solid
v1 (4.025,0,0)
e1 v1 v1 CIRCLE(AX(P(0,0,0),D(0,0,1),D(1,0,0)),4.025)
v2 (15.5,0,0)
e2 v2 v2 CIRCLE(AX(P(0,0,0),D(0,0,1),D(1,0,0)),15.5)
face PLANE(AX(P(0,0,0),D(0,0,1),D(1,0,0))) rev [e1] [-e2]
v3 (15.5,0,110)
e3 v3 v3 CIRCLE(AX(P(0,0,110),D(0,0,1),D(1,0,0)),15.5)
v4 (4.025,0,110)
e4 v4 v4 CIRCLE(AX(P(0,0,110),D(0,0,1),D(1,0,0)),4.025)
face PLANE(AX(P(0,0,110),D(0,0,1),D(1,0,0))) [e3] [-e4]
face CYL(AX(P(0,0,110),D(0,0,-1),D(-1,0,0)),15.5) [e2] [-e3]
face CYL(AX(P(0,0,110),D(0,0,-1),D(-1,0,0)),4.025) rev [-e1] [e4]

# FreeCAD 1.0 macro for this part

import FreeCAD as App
import Part
import Sketcher
from FreeCAD import Vector

doc = App.newDocument("Part")
body = doc.addObject("PartDesign::Body", "Body")

sketch1 = body.newObject("Sketcher::SketchObject", "Sketch")
sketch1.AttachmentSupport = (doc.getObject("XY_Plane"), [""])
sketch1.MapMode = "FlatFace"
sketch1.addGeometry([
    Part.Circle(Vector(0, 0, 0), Vector(0, 0, 1), 15.5),
    Part.Circle(Vector(0, 0, 0), Vector(0, 0, 1), 4.025),
], False)
sketch1.addConstraint([
    Sketcher.Constraint("Coincident", 0, 3, -1, 1),
    Sketcher.Constraint("Coincident", 1, 3, -1, 1),
    Sketcher.Constraint("Diameter", 0, 31.0),
    Sketcher.Constraint("Diameter", 1, 8.05),
])
pad1 = body.newObject("PartDesign::Pad", "Pad")
pad1.Profile = sketch1
pad1.Length = 110

doc.recompute()
